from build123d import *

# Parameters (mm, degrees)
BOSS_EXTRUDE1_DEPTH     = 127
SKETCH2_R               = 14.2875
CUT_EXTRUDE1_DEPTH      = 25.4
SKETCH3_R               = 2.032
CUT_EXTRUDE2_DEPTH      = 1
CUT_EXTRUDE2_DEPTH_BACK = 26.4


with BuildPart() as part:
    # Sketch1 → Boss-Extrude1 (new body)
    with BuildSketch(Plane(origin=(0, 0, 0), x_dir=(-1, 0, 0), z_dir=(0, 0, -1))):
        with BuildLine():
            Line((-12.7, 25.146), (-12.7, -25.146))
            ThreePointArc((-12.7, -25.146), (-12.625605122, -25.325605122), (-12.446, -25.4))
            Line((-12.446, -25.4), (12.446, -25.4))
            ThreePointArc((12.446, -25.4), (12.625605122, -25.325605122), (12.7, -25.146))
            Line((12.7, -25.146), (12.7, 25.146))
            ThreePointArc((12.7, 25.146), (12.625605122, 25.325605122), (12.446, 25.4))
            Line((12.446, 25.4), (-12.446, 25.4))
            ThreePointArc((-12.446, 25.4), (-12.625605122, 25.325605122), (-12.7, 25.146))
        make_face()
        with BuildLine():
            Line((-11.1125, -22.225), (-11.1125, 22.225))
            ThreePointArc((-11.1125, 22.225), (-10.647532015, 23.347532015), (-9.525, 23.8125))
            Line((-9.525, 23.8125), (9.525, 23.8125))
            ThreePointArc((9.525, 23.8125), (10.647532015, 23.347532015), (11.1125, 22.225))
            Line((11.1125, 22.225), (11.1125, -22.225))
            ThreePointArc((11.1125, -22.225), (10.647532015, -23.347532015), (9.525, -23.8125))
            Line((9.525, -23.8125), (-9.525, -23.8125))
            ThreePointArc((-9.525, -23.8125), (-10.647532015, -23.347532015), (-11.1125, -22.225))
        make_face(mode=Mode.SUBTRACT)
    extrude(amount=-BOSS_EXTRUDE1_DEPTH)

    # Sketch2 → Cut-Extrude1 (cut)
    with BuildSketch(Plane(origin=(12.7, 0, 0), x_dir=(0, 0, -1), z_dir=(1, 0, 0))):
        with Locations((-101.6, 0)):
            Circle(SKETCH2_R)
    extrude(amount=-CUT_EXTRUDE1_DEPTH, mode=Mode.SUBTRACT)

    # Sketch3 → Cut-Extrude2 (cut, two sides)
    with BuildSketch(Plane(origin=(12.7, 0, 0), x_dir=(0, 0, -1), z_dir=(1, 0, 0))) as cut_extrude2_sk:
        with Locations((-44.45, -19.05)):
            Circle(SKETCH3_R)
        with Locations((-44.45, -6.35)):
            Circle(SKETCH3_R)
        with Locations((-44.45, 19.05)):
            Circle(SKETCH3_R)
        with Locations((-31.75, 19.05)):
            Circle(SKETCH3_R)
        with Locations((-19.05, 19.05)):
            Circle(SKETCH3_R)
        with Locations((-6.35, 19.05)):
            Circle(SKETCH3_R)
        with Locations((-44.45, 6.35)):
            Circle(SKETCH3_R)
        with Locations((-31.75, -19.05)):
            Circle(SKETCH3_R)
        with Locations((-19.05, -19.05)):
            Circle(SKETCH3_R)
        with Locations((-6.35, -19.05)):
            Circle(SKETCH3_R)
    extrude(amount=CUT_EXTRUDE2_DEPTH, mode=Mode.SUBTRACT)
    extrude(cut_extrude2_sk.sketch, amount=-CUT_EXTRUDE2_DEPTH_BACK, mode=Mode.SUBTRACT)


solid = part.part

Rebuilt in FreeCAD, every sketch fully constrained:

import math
import FreeCAD as App
import Part
import Sketcher

V = App.Vector
Q = App.Units.Quantity

doc = App.newDocument("Part")
body = doc.addObject("PartDesign::Body", "Body")

# Sketch on XY plane
sketch1 = body.newObject("Sketcher::SketchObject", "Sketch")
sketch1.AttachmentSupport = (doc.getObject("XY_Plane"), [""])
sketch1.MapMode = "FlatFace"
sketch1.addGeometry([
    Part.LineSegment(V(12.7, 25.15, 0), V(12.7, -25.15, 0)),  # 0
    Part.ArcOfCircle(Part.Circle(V(12.45, -25.15, 0), V(0, 0, 1), 0.25), math.radians(-90), math.radians(0)),  # 1
    Part.LineSegment(V(12.45, -25.4, 0), V(-12.45, -25.4, 0)),  # 2
    Part.ArcOfCircle(Part.Circle(V(-12.45, -25.15, 0), V(0, 0, 1), 0.25), math.radians(-180), math.radians(-90)),  # 3
    Part.LineSegment(V(-12.7, -25.15, 0), V(-12.7, 25.15, 0)),  # 4
    Part.ArcOfCircle(Part.Circle(V(-12.45, 25.15, 0), V(0, 0, 1), 0.25), math.radians(90), math.radians(180)),  # 5
    Part.LineSegment(V(-12.45, 25.4, 0), V(12.45, 25.4, 0)),  # 6
    Part.ArcOfCircle(Part.Circle(V(12.45, 25.15, 0), V(0, 0, 1), 0.25), math.radians(0), math.radians(90)),  # 7
    Part.ArcOfCircle(Part.Circle(V(9.53, -22.23, 0), V(0, 0, 1), 1.59), math.radians(-90), math.radians(0)),  # 8
    Part.LineSegment(V(11.11, -22.23, 0), V(11.11, 22.23, 0)),  # 9
    Part.ArcOfCircle(Part.Circle(V(9.53, 22.23, 0), V(0, 0, 1), 1.59), math.radians(0), math.radians(90)),  # 10
    Part.LineSegment(V(9.53, 23.81, 0), V(-9.53, 23.81, 0)),  # 11
    Part.ArcOfCircle(Part.Circle(V(-9.53, 22.23, 0), V(0, 0, 1), 1.59), math.radians(90), math.radians(180)),  # 12
    Part.LineSegment(V(-11.11, 22.23, 0), V(-11.11, -22.23, 0)),  # 13
    Part.ArcOfCircle(Part.Circle(V(-9.53, -22.23, 0), V(0, 0, 1), 1.59), math.radians(180), math.radians(270)),  # 14
    Part.LineSegment(V(-9.53, -23.81, 0), V(9.53, -23.81, 0)),  # 15
], False)
sketch1.addConstraint([
    Sketcher.Constraint("Tangent", 0, 2, 1, 2),
    Sketcher.Constraint("Tangent", 1, 1, 2, 1),
    Sketcher.Constraint("Tangent", 2, 2, 3, 2),
    Sketcher.Constraint("Tangent", 3, 1, 4, 1),
    Sketcher.Constraint("Tangent", 4, 2, 5, 2),
    Sketcher.Constraint("Tangent", 5, 1, 6, 1),
    Sketcher.Constraint("Tangent", 6, 2, 7, 2),
    Sketcher.Constraint("Tangent", 7, 1, 0, 1),
    Sketcher.Constraint("Tangent", 8, 2, 9, 1),
    Sketcher.Constraint("Tangent", 9, 2, 10, 1),
    Sketcher.Constraint("Tangent", 10, 2, 11, 1),
    Sketcher.Constraint("Tangent", 11, 2, 12, 1),
    Sketcher.Constraint("Tangent", 12, 2, 13, 1),
    Sketcher.Constraint("Tangent", 13, 2, 14, 1),
    Sketcher.Constraint("Tangent", 14, 2, 15, 1),
    Sketcher.Constraint("Tangent", 15, 2, 8, 1),
    Sketcher.Constraint("Vertical", 0),
    Sketcher.Constraint("Horizontal", 2),
    Sketcher.Constraint("Vertical", 4),
    Sketcher.Constraint("Horizontal", 6),
    Sketcher.Constraint("Vertical", 9),
    Sketcher.Constraint("Horizontal", 11),
    Sketcher.Constraint("Vertical", 13),
    Sketcher.Constraint("Horizontal", 15),
    Sketcher.Constraint("Equal", 1, 3),
    Sketcher.Constraint("Equal", 3, 5),
    Sketcher.Constraint("Equal", 5, 7),
    Sketcher.Constraint("Equal", 8, 10),
    Sketcher.Constraint("Equal", 10, 12),
    Sketcher.Constraint("Equal", 12, 14),
    Sketcher.Constraint("Symmetric", 1, 3, 5, 3, -1, 1),
    Sketcher.Constraint("Symmetric", 8, 3, 12, 3, -1, 1),
    Sketcher.Constraint("Radius", 1, Q("0.01 in")),
    Sketcher.Constraint("DistanceY", 1, 1, -1, 1, Q("1 in")),
    Sketcher.Constraint("Radius", 8, Q("0.0625 in")),
    Sketcher.Constraint("DistanceX", 2, 2, 2, 1, Q("0.98 in")),
    Sketcher.Constraint("DistanceX", 11, 2, 11, 1, Q("0.75 in")),
    Sketcher.Constraint("DistanceY", 9, 1, 9, 2, Q("1.75 in")),
])
pad1 = body.newObject("PartDesign::Pad", "Pad")
pad1.Profile = sketch1
pad1.Length = Q("5 in")

# Sketch on YZ plane
sketch2 = body.newObject("Sketcher::SketchObject", "Sketch001")
sketch2.AttachmentSupport = (doc.getObject("YZ_Plane"), [""])
sketch2.MapMode = "FlatFace"
sketch2.AttachmentOffset = App.Placement(V(0, 0, 0.5 * 25.4), App.Rotation())
sketch2.addGeometry(Part.Circle(V(0, 102, 0), V(0, 0, 1), 14), False)
sketch2.addConstraint([
    Sketcher.Constraint("PointOnObject", 0, 3, -2),
    Sketcher.Constraint("Diameter", 0, Q("1.125 in")),
    Sketcher.Constraint("DistanceY", -1, 1, 0, 3, Q("4 in")),
])
pocket1 = body.newObject("PartDesign::Pocket", "Pocket")
pocket1.Profile = sketch2
pocket1.Length = Q("1 in")

# Sketch on YZ plane
sketch3 = body.newObject("Sketcher::SketchObject", "Sketch002")
sketch3.AttachmentSupport = (doc.getObject("YZ_Plane"), [""])
sketch3.MapMode = "FlatFace"
sketch3.AttachmentOffset = App.Placement(V(0, 0, 0.5 * 25.4), App.Rotation())
sketch3.addGeometry([
    Part.Circle(V(-19.1, 44.5, 0), V(0, 0, 1), 2),  # 0
    Part.Circle(V(-6.3, 44.5, 0), V(0, 0, 1), 2),  # 1
    Part.Circle(V(19.1, 44.5, 0), V(0, 0, 1), 2),  # 2
    Part.Circle(V(19.1, 31.8, 0), V(0, 0, 1), 2),  # 3
    Part.Circle(V(19.1, 19.1, 0), V(0, 0, 1), 2),  # 4
    Part.Circle(V(19.1, 6.3, 0), V(0, 0, 1), 2),  # 5
    Part.Circle(V(6.3, 44.5, 0), V(0, 0, 1), 2),  # 6
    Part.Circle(V(-19.1, 31.8, 0), V(0, 0, 1), 2),  # 7
    Part.Circle(V(-19.1, 19.1, 0), V(0, 0, 1), 2),  # 8
    Part.Circle(V(-19.1, 6.3, 0), V(0, 0, 1), 2),  # 9
], False)
sketch3.addConstraint([
    Sketcher.Constraint("Equal", 0, 1),
    Sketcher.Constraint("Equal", 1, 2),
    Sketcher.Constraint("Equal", 2, 3),
    Sketcher.Constraint("Equal", 3, 4),
    Sketcher.Constraint("Equal", 4, 5),
    Sketcher.Constraint("Equal", 5, 6),
    Sketcher.Constraint("Equal", 6, 7),
    Sketcher.Constraint("Equal", 7, 8),
    Sketcher.Constraint("Equal", 8, 9),
    Sketcher.Constraint("Symmetric", 0, 3, 2, 3, -2),
    Sketcher.Constraint("Symmetric", 1, 3, 6, 3, -2),
    Sketcher.Constraint("Symmetric", 3, 3, 7, 3, -2),
    Sketcher.Constraint("Symmetric", 4, 3, 8, 3, -2),
    Sketcher.Constraint("Symmetric", 5, 3, 9, 3, -2),
    Sketcher.Constraint("Horizontal", 0, 3, 1, 3),
    Sketcher.Constraint("Vertical", 2, 3, 3, 3),
    Sketcher.Constraint("Vertical", 3, 3, 4, 3),
    Sketcher.Constraint("Vertical", 4, 3, 5, 3),
    Sketcher.Constraint("Diameter", 0, Q("0.16 in")),
    Sketcher.Constraint("DistanceX", 1, 3, 2, 3, Q("1 in")),
    Sketcher.Constraint("DistanceY", 4, 3, 2, 3, Q("1 in")),
    Sketcher.Constraint("DistanceY", 5, 3, 3, 3, Q("1 in")),
    Sketcher.Constraint("DistanceX", 0, 3, 1, 3, Q("0.5 in")),
    Sketcher.Constraint("DistanceY", 3, 3, 2, 3, Q("0.5 in")),
    Sketcher.Constraint("DistanceY", -1, 1, 0, 3, Q("1.75 in")),
])
pocket2 = body.newObject("PartDesign::Pocket", "Pocket001")
pocket2.Profile = sketch3
pocket2.Type = "ThroughAll"
pocket2.Midplane = True

doc.recompute()
